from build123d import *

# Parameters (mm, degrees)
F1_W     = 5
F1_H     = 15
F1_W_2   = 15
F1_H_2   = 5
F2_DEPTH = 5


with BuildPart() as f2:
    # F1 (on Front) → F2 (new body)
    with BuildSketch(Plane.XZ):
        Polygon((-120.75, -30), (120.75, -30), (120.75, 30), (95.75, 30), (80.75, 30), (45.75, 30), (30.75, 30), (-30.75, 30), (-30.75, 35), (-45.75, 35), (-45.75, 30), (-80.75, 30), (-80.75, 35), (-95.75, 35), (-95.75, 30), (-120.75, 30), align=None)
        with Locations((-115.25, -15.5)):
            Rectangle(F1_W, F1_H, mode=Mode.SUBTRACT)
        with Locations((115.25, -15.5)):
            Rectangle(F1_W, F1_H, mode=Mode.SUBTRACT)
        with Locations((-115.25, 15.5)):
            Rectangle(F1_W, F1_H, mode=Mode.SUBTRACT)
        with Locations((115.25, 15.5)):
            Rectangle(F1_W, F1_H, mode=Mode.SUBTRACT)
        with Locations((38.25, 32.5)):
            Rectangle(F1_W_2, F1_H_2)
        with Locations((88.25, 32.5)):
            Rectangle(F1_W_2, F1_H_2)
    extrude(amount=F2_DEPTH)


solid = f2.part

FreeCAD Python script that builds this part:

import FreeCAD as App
import Part
import Sketcher
from FreeCAD import Vector

doc = App.newDocument("Part")
params = doc.addObject("Spreadsheet::Sheet", "Params")
for row, (alias, value) in enumerate([
    ("sketch1_width", "25 mm"),
    ("sketch1_width2", "15 mm"),
    ("sketch1_width3", "35 mm"),
    ("sketch1_width4", "5 mm"),
    ("sketch1_height", "60 mm"),
    ("pad1_length", "5 mm"),
], start=1):
    params.set(f"A{row}", alias)
    params.set(f"B{row}", "=" + value)
    params.setAlias(f"B{row}", alias)

body = doc.addObject("PartDesign::Body", "Body")

sketch1 = doc.addObject("Sketcher::SketchObject", "Sketch")
body.addObject(sketch1)
sketch1.AttachmentSupport = (doc.XZ_Plane, [""])
sketch1.MapMode = "FlatFace"
sketch1.addGeometry([
    Part.LineSegment(Vector(-121, -30, 0), Vector(121, -30, 0)),
    Part.LineSegment(Vector(121, -30, 0), Vector(121, 30, 0)),
    Part.LineSegment(Vector(121, 30, 0), Vector(96, 30, 0)),
    Part.LineSegment(Vector(96, 30, 0), Vector(96, 35, 0)),
    Part.LineSegment(Vector(96, 35, 0), Vector(81, 35, 0)),
    Part.LineSegment(Vector(81, 35, 0), Vector(81, 30, 0)),
    Part.LineSegment(Vector(81, 30, 0), Vector(46, 30, 0)),
    Part.LineSegment(Vector(46, 30, 0), Vector(46, 35, 0)),
    Part.LineSegment(Vector(46, 35, 0), Vector(31, 35, 0)),
    Part.LineSegment(Vector(31, 35, 0), Vector(31, 30, 0)),
    Part.LineSegment(Vector(31, 30, 0), Vector(-31, 30, 0)),
    Part.LineSegment(Vector(-31, 30, 0), Vector(-31, 35, 0)),
    Part.LineSegment(Vector(-31, 35, 0), Vector(-46, 35, 0)),
    Part.LineSegment(Vector(-46, 35, 0), Vector(-46, 30, 0)),
    Part.LineSegment(Vector(-46, 30, 0), Vector(-81, 30, 0)),
    Part.LineSegment(Vector(-81, 30, 0), Vector(-81, 35, 0)),
    Part.LineSegment(Vector(-81, 35, 0), Vector(-96, 35, 0)),
    Part.LineSegment(Vector(-96, 35, 0), Vector(-96, 30, 0)),
    Part.LineSegment(Vector(-96, 30, 0), Vector(-121, 30, 0)),
    Part.LineSegment(Vector(-121, 30, 0), Vector(-121, -30, 0)),
    Part.LineSegment(Vector(-113, -23, 0), Vector(-118, -23, 0)),
    Part.LineSegment(Vector(-118, -23, 0), Vector(-118, -8, 0)),
    Part.LineSegment(Vector(-118, -8, 0), Vector(-113, -8, 0)),
    Part.LineSegment(Vector(-113, -8, 0), Vector(-113, -23, 0)),
    Part.LineSegment(Vector(118, -23, 0), Vector(113, -23, 0)),
    Part.LineSegment(Vector(113, -23, 0), Vector(113, -8, 0)),
    Part.LineSegment(Vector(113, -8, 0), Vector(118, -8, 0)),
    Part.LineSegment(Vector(118, -8, 0), Vector(118, -23, 0)),
    Part.LineSegment(Vector(-113, 8, 0), Vector(-118, 8, 0)),
    Part.LineSegment(Vector(-118, 8, 0), Vector(-118, 23, 0)),
    Part.LineSegment(Vector(-118, 23, 0), Vector(-113, 23, 0)),
    Part.LineSegment(Vector(-113, 23, 0), Vector(-113, 8, 0)),
    Part.LineSegment(Vector(118, 8, 0), Vector(113, 8, 0)),
    Part.LineSegment(Vector(113, 8, 0), Vector(113, 23, 0)),
    Part.LineSegment(Vector(113, 23, 0), Vector(118, 23, 0)),
    Part.LineSegment(Vector(118, 23, 0), Vector(118, 8, 0)),
], False)
sketch1.addConstraint([
    Sketcher.Constraint("Coincident", 0, 2, 1, 1),
    Sketcher.Constraint("Coincident", 1, 2, 2, 1),
    Sketcher.Constraint("Coincident", 2, 2, 3, 1),
    Sketcher.Constraint("Coincident", 3, 2, 4, 1),
    Sketcher.Constraint("Coincident", 4, 2, 5, 1),
    Sketcher.Constraint("Coincident", 5, 2, 6, 1),
    Sketcher.Constraint("Coincident", 6, 2, 7, 1),
    Sketcher.Constraint("Coincident", 7, 2, 8, 1),
    Sketcher.Constraint("Coincident", 8, 2, 9, 1),
    Sketcher.Constraint("Coincident", 9, 2, 10, 1),
    Sketcher.Constraint("Coincident", 10, 2, 11, 1),
    Sketcher.Constraint("Coincident", 11, 2, 12, 1),
    Sketcher.Constraint("Coincident", 12, 2, 13, 1),
    Sketcher.Constraint("Coincident", 13, 2, 14, 1),
    Sketcher.Constraint("Coincident", 14, 2, 15, 1),
    Sketcher.Constraint("Coincident", 15, 2, 16, 1),
    Sketcher.Constraint("Coincident", 16, 2, 17, 1),
    Sketcher.Constraint("Coincident", 17, 2, 18, 1),
    Sketcher.Constraint("Coincident", 18, 2, 19, 1),
    Sketcher.Constraint("Coincident", 19, 2, 0, 1),
    Sketcher.Constraint("Coincident", 20, 2, 21, 1),
    Sketcher.Constraint("Coincident", 21, 2, 22, 1),
    Sketcher.Constraint("Coincident", 22, 2, 23, 1),
    Sketcher.Constraint("Coincident", 23, 2, 20, 1),
    Sketcher.Constraint("Coincident", 24, 2, 25, 1),
    Sketcher.Constraint("Coincident", 25, 2, 26, 1),
    Sketcher.Constraint("Coincident", 26, 2, 27, 1),
    Sketcher.Constraint("Coincident", 27, 2, 24, 1),
    Sketcher.Constraint("Coincident", 28, 2, 29, 1),
    Sketcher.Constraint("Coincident", 29, 2, 30, 1),
    Sketcher.Constraint("Coincident", 30, 2, 31, 1),
    Sketcher.Constraint("Coincident", 31, 2, 28, 1),
    Sketcher.Constraint("Coincident", 32, 2, 33, 1),
    Sketcher.Constraint("Coincident", 33, 2, 34, 1),
    Sketcher.Constraint("Coincident", 34, 2, 35, 1),
    Sketcher.Constraint("Coincident", 35, 2, 32, 1),
    Sketcher.Constraint("Horizontal", 0),
    Sketcher.Constraint("Vertical", 1),
    Sketcher.Constraint("Horizontal", 2),
    Sketcher.Constraint("Vertical", 3),
    Sketcher.Constraint("Horizontal", 4),
    Sketcher.Constraint("Vertical", 5),
    Sketcher.Constraint("Horizontal", 6),
    Sketcher.Constraint("Vertical", 7),
    Sketcher.Constraint("Horizontal", 8),
    Sketcher.Constraint("Vertical", 9),
    Sketcher.Constraint("Horizontal", 10),
    Sketcher.Constraint("Vertical", 11),
    Sketcher.Constraint("Horizontal", 12),
    Sketcher.Constraint("Vertical", 13),
    Sketcher.Constraint("Horizontal", 14),
    Sketcher.Constraint("Vertical", 15),
    Sketcher.Constraint("Horizontal", 16),
    Sketcher.Constraint("Vertical", 17),
    Sketcher.Constraint("Horizontal", 18),
    Sketcher.Constraint("Vertical", 19),
    Sketcher.Constraint("Horizontal", 20),
    Sketcher.Constraint("Vertical", 21),
    Sketcher.Constraint("Horizontal", 22),
    Sketcher.Constraint("Vertical", 23),
    Sketcher.Constraint("Horizontal", 24),
    Sketcher.Constraint("Vertical", 25),
    Sketcher.Constraint("Horizontal", 26),
    Sketcher.Constraint("Vertical", 27),
    Sketcher.Constraint("Horizontal", 28),
    Sketcher.Constraint("Vertical", 29),
    Sketcher.Constraint("Horizontal", 30),
    Sketcher.Constraint("Vertical", 31),
    Sketcher.Constraint("Horizontal", 32),
    Sketcher.Constraint("Vertical", 33),
    Sketcher.Constraint("Horizontal", 34),
    Sketcher.Constraint("Vertical", 35),
    Sketcher.Constraint("Symmetric", 0, 2, 18, 2, -1, 1),
    Sketcher.Constraint("Symmetric", 26, 2, 28, 2, -1, 1),
    Sketcher.Constraint("Symmetric", 24, 2, 30, 2, -1, 1),
    Sketcher.Constraint("Symmetric", 22, 2, 32, 2, -1, 1),
    Sketcher.Constraint("Symmetric", 20, 2, 34, 2, -1, 1),
    Sketcher.Constraint("Symmetric", 8, 2, 11, 2, -2),
    Sketcher.Constraint("Symmetric", 6, 2, 13, 2, -2),
    Sketcher.Constraint("Symmetric", 4, 2, 15, 2, -2),
    Sketcher.Constraint("Symmetric", 2, 2, 17, 2, -2),
    Sketcher.Constraint("Symmetric", 23, 2, 24, 2, -2),
    Sketcher.Constraint("Symmetric", 21, 2, 26, 2, -2),
    Sketcher.Constraint("Horizontal", 2, 2, 5, 2),
    Sketcher.Constraint("Horizontal", 4, 2, 7, 2),
    Sketcher.Constraint("Horizontal", 6, 2, 9, 2),
    Sketcher.Constraint("Equal", 4, 8),
    Sketcher.Constraint("Equal", 34, 3),
    Sketcher.Constraint("Equal", 16, 21),
    Sketcher.Constraint("DistanceX", 2, 2, 2, 1, 25.0),
    Sketcher.Constraint("DistanceX", 4, 2, 4, 1, 15.0),
    Sketcher.Constraint("DistanceX", 6, 2, 6, 1, 35.0),
    Sketcher.Constraint("DistanceX", 20, 2, 20, 1, 5.0),
    Sketcher.Constraint("DistanceY", 1, 1, 1, 2, 60.0),
    Sketcher.Constraint("DistanceX", 0, 1, 0, 2, 241.5),
    Sketcher.Constraint("DistanceY", 20, 2, -1, 1, 23.0),
    Sketcher.Constraint("DistanceX", 19, 2, 20, 2, 3.0),
])
sketch1.setExpression("Constraints[89]", "Params.sketch1_width")
sketch1.setExpression("Constraints[90]", "Params.sketch1_width2")
sketch1.setExpression("Constraints[91]", "Params.sketch1_width3")
sketch1.setExpression("Constraints[92]", "Params.sketch1_width4")
sketch1.setExpression("Constraints[93]", "Params.sketch1_height")
pad1 = doc.addObject("PartDesign::Pad", "Pad")
body.addObject(pad1)
pad1.Profile = sketch1
pad1.setExpression("Length", "Params.pad1_length")

doc.recompute()
